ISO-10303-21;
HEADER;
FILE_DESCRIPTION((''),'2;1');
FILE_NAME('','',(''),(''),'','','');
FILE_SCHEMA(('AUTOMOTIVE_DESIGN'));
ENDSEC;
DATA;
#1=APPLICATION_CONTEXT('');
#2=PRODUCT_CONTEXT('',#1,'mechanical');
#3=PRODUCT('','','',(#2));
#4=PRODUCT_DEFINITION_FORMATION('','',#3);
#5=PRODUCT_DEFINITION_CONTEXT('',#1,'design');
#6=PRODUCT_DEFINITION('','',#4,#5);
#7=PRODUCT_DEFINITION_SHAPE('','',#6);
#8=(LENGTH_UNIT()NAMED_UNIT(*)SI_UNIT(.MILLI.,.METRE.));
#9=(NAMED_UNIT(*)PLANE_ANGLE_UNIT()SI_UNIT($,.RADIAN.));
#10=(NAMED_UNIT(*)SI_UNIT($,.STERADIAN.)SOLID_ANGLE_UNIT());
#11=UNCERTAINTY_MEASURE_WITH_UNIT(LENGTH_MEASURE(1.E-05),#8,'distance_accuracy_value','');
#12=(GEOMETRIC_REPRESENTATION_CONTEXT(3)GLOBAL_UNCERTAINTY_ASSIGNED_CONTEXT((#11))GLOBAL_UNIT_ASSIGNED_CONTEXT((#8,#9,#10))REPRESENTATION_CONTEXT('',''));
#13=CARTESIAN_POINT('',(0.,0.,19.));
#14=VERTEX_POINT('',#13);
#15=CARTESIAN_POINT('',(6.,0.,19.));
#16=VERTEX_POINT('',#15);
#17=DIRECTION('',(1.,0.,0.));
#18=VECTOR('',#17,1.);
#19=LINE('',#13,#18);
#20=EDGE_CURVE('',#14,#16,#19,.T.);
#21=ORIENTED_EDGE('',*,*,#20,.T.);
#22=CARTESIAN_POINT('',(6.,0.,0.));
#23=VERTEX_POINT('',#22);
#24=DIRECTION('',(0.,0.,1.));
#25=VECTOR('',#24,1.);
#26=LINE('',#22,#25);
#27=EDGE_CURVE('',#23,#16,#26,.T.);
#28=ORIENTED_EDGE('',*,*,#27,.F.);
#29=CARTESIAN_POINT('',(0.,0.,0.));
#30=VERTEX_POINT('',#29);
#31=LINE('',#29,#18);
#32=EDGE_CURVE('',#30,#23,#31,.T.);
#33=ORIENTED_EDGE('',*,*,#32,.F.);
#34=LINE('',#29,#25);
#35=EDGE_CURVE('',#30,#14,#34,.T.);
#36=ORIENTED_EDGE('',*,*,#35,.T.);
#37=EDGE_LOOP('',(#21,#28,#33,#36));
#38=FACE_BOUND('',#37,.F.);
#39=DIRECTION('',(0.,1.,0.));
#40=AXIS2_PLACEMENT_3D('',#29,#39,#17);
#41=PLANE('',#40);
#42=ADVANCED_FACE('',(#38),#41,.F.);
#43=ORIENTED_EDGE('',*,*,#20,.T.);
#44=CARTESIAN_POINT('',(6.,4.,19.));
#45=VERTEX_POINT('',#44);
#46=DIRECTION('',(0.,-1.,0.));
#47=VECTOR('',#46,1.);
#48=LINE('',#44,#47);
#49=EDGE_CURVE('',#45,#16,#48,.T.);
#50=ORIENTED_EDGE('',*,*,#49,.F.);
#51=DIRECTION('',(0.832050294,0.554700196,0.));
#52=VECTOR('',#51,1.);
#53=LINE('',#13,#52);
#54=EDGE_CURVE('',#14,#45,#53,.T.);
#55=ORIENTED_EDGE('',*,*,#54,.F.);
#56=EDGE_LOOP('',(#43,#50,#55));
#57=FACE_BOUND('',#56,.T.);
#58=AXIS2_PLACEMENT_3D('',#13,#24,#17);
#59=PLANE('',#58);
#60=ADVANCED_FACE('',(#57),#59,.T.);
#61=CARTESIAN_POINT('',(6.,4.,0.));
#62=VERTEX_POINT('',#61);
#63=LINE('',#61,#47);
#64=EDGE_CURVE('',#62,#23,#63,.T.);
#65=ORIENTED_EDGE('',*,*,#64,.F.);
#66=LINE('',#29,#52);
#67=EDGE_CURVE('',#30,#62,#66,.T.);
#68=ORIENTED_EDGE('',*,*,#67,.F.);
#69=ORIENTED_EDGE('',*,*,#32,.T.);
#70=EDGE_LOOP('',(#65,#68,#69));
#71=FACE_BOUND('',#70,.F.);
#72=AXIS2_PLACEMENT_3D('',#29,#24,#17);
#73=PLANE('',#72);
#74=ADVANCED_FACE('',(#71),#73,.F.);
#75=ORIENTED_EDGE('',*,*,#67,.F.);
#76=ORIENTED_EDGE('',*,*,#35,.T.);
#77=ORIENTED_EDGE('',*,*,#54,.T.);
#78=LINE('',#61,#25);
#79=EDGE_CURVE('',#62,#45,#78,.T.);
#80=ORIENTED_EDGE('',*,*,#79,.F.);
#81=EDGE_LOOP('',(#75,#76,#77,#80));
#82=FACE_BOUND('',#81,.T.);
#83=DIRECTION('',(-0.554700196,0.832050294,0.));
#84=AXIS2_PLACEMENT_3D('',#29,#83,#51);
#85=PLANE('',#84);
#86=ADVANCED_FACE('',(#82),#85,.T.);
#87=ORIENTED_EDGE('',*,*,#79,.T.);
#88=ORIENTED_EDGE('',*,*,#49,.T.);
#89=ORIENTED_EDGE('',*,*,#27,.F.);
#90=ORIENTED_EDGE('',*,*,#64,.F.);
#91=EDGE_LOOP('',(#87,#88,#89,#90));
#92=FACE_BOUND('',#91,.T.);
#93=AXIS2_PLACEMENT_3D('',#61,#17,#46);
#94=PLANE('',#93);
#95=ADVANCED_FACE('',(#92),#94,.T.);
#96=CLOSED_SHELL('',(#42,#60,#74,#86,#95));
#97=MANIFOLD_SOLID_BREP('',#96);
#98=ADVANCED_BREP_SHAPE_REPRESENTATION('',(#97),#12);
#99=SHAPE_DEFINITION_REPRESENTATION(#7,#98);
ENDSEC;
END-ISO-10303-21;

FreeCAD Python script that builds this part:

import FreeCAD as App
import Part
import Sketcher

V = App.Vector

doc = App.newDocument("Part")
body = doc.addObject("PartDesign::Body", "Body")

sketch1 = body.newObject("Sketcher::SketchObject", "Sketch")
sketch1.AttachmentSupport = (doc.getObject("XY_Plane"), [""])
sketch1.MapMode = "FlatFace"
sketch1.addGeometry(Part.LineSegment(V(6, 4, 0), V(0, 0, 0)), False)
sketch1.addGeometry(Part.LineSegment(V(0, 0, 0), V(6, 0, 0)), False)
sketch1.addGeometry(Part.LineSegment(V(6, 0, 0), V(6, 4, 0)), False)
sketch1.addConstraint(Sketcher.Constraint("Coincident", 0, 2, 1, 1))
sketch1.addConstraint(Sketcher.Constraint("Coincident", 1, 2, 2, 1))
sketch1.addConstraint(Sketcher.Constraint("Coincident", 2, 2, 0, 1))
sketch1.addConstraint(Sketcher.Constraint("Horizontal", 1))
sketch1.addConstraint(Sketcher.Constraint("Vertical", 2))
sketch1.addConstraint(Sketcher.Constraint("Coincident", 0, 2, -1, 1))
sketch1.addConstraint(Sketcher.Constraint("DistanceX", 1, 1, 1, 2, 6.0))
sketch1.addConstraint(Sketcher.Constraint("DistanceY", 2, 1, 2, 2, 4.0))
pad1 = body.newObject("PartDesign::Pad", "Pad")
pad1.Profile = sketch1
pad1.Length = 19

doc.recompute()
